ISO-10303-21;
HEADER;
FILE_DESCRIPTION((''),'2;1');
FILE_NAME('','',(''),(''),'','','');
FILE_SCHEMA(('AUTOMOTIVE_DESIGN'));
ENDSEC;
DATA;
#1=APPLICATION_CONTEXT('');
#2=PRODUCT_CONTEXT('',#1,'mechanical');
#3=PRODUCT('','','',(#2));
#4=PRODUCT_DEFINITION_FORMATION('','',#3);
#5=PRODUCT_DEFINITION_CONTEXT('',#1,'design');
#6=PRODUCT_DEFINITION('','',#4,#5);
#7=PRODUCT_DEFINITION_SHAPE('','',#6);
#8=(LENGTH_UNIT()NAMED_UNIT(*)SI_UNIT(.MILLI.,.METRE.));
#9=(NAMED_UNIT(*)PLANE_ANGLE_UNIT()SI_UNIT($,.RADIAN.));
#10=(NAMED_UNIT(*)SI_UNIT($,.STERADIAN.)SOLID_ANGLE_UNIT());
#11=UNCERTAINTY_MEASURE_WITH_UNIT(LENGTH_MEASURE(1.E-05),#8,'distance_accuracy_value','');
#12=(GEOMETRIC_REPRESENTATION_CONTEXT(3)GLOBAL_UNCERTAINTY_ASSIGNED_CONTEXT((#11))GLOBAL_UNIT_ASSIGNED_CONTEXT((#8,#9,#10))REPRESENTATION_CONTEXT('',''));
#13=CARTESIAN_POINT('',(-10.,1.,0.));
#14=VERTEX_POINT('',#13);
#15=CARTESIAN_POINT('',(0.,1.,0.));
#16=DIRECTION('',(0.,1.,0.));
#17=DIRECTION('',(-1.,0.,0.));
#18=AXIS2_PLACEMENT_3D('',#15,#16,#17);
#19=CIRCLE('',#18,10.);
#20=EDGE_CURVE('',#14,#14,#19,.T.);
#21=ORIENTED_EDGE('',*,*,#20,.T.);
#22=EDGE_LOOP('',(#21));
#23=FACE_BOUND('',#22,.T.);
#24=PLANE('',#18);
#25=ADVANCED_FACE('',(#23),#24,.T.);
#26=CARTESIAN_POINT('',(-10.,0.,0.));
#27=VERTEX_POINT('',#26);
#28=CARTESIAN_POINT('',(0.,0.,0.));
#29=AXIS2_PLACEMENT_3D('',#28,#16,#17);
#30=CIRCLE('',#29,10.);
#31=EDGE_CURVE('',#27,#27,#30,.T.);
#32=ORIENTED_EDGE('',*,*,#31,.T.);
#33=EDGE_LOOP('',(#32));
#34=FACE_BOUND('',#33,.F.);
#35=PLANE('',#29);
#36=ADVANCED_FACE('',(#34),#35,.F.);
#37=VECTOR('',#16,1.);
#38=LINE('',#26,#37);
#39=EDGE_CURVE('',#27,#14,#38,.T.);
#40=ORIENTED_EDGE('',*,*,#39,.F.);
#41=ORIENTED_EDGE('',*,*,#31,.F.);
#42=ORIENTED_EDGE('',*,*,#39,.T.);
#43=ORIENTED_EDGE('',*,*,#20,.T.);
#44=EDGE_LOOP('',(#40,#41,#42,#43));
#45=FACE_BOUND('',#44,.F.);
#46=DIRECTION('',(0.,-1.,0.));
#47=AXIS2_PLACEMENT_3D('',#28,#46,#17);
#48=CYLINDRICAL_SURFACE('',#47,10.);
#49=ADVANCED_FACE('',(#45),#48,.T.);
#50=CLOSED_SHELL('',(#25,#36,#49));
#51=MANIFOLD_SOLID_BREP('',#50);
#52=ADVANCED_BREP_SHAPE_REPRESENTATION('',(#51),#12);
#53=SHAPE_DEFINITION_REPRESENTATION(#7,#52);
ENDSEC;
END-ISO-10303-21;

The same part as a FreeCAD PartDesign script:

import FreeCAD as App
import Part
import Sketcher
from FreeCAD import Vector

doc = App.newDocument("Part")
body = doc.addObject("PartDesign::Body", "Body")

# Sketch on XZ plane
sketch1 = body.newObject("Sketcher::SketchObject", "Sketch")
sketch1.AttachmentSupport = (doc.getObject("XZ_Plane"), [""])
sketch1.MapMode = "FlatFace"
sketch1.addGeometry(Part.Circle(Vector(0, 0, 0), Vector(0, 0, 1), 10), False)
sketch1.addConstraint(Sketcher.Constraint("Coincident", 0, 3, -1, 1))
sketch1.addConstraint(Sketcher.Constraint("Diameter", 0, 20.0))
pad1 = body.newObject("PartDesign::Pad", "Pad")
pad1.Profile = sketch1
pad1.Length = 1
pad1.Reversed = True

doc.recompute()
